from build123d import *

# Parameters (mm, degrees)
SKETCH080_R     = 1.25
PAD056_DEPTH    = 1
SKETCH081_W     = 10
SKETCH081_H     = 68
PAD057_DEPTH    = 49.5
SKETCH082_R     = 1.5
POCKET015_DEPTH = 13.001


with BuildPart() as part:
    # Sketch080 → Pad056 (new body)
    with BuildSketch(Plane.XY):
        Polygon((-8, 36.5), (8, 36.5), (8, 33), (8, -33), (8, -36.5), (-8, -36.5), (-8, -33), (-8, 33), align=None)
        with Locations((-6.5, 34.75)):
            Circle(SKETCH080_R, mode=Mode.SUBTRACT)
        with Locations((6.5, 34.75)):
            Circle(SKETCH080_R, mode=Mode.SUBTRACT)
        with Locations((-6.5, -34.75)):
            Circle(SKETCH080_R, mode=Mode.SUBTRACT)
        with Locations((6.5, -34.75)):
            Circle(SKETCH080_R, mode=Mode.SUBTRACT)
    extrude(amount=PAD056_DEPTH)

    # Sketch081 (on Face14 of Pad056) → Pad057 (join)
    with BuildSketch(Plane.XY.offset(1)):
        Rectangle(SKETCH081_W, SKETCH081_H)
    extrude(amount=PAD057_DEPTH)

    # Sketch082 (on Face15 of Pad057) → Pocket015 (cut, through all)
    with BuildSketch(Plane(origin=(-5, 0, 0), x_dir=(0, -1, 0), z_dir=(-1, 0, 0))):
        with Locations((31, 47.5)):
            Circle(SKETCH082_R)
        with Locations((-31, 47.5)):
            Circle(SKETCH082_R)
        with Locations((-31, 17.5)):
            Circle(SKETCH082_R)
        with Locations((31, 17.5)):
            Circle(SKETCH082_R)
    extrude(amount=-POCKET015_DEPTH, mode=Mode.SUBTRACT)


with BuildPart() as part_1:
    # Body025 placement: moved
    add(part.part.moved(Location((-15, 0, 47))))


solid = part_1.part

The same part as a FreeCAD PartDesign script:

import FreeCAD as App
import Part
import Sketcher

V = App.Vector

doc = App.newDocument("Part")
body = doc.addObject("PartDesign::Body", "Body")

# Sketch on XY plane
sketch1 = doc.addObject("Sketcher::SketchObject", "Sketch")
body.addObject(sketch1)
sketch1.AttachmentSupport = (doc.XY_Plane, [""])
sketch1.MapMode = "FlatFace"
sketch1.addGeometry(Part.LineSegment(V(8, 36.5, 0), V(-8, 36.5, 0)), False)
sketch1.addGeometry(Part.LineSegment(V(-8, 36.5, 0), V(-8, -36.5, 0)), False)
sketch1.addGeometry(Part.LineSegment(V(-8, -36.5, 0), V(8, -36.5, 0)), False)
sketch1.addGeometry(Part.LineSegment(V(8, -36.5, 0), V(8, 36.5, 0)), False)
sketch1.addGeometry(Part.Circle(V(6.5, -34.75, 0), V(0, 0, 1), 1.25), False)
sketch1.addGeometry(Part.Circle(V(-6.5, -34.75, 0), V(0, 0, 1), 1.25), False)
sketch1.addGeometry(Part.Circle(V(6.5, 34.75, 0), V(0, 0, 1), 1.25), False)
sketch1.addGeometry(Part.Circle(V(-6.5, 34.75, 0), V(0, 0, 1), 1.25), False)
sketch1.addConstraint(Sketcher.Constraint("Coincident", 0, 2, 1, 1))
sketch1.addConstraint(Sketcher.Constraint("Coincident", 1, 2, 2, 1))
sketch1.addConstraint(Sketcher.Constraint("Coincident", 2, 2, 3, 1))
sketch1.addConstraint(Sketcher.Constraint("Coincident", 3, 2, 0, 1))
sketch1.addConstraint(Sketcher.Constraint("Horizontal", 0))
sketch1.addConstraint(Sketcher.Constraint("Vertical", 1))
sketch1.addConstraint(Sketcher.Constraint("Horizontal", 2))
sketch1.addConstraint(Sketcher.Constraint("Vertical", 3))
sketch1.addConstraint(Sketcher.Constraint("Equal", 4, 5))
sketch1.addConstraint(Sketcher.Constraint("Equal", 5, 6))
sketch1.addConstraint(Sketcher.Constraint("Equal", 6, 7))
sketch1.addConstraint(Sketcher.Constraint("Symmetric", 5, 3, 6, 3, -1, 1))
sketch1.addConstraint(Sketcher.Constraint("Symmetric", 4, 3, 7, 3, -1, 1))
sketch1.addConstraint(Sketcher.Constraint("Symmetric", 0, 2, 2, 2, -1, 1))
sketch1.addConstraint(Sketcher.Constraint("Symmetric", 4, 3, 5, 3, -2))
sketch1.addConstraint(Sketcher.Constraint("Diameter", 4, 2.5))
sketch1.addConstraint(Sketcher.Constraint("DistanceX", 0, 2, 0, 1, 16.0))
sketch1.addConstraint(Sketcher.Constraint("DistanceY", 1, 2, 1, 1, 73.0))
sketch1.addConstraint(Sketcher.Constraint("DistanceX", 5, 3, 4, 3, 13.0))
sketch1.addConstraint(Sketcher.Constraint("DistanceY", 4, 3, 6, 3, 69.5))
pad1 = doc.addObject("PartDesign::Pad", "Pad")
body.addObject(pad1)
pad1.Profile = sketch1
pad1.Length = 1

# Sketch on XY plane
sketch2 = doc.addObject("Sketcher::SketchObject", "Sketch001")
body.addObject(sketch2)
sketch2.AttachmentSupport = (doc.XY_Plane, [""])
sketch2.MapMode = "FlatFace"
sketch2.AttachmentOffset = App.Placement(V(0, 0, 1), App.Rotation())
sketch2.addGeometry(Part.LineSegment(V(-5, 34, 0), V(-5, -34, 0)), False)
sketch2.addGeometry(Part.LineSegment(V(-5, -34, 0), V(5, -34, 0)), False)
sketch2.addGeometry(Part.LineSegment(V(5, -34, 0), V(5, 34, 0)), False)
sketch2.addGeometry(Part.LineSegment(V(5, 34, 0), V(-5, 34, 0)), False)
sketch2.addConstraint(Sketcher.Constraint("Coincident", 0, 2, 1, 1))
sketch2.addConstraint(Sketcher.Constraint("Coincident", 1, 2, 2, 1))
sketch2.addConstraint(Sketcher.Constraint("Coincident", 2, 2, 3, 1))
sketch2.addConstraint(Sketcher.Constraint("Coincident", 3, 2, 0, 1))
sketch2.addConstraint(Sketcher.Constraint("Vertical", 0))
sketch2.addConstraint(Sketcher.Constraint("Horizontal", 1))
sketch2.addConstraint(Sketcher.Constraint("Vertical", 2))
sketch2.addConstraint(Sketcher.Constraint("Horizontal", 3))
sketch2.addConstraint(Sketcher.Constraint("Symmetric", 0, 2, 2, 2, -1, 1))
sketch2.addConstraint(Sketcher.Constraint("DistanceX", 1, 1, 1, 2, 10.0))
sketch2.addConstraint(Sketcher.Constraint("DistanceY", 0, 2, 0, 1, 68.0))
pad2 = doc.addObject("PartDesign::Pad", "Pad001")
body.addObject(pad2)
pad2.Profile = sketch2
pad2.Length = 49.5

# Sketch on YZ plane
sketch3 = doc.addObject("Sketcher::SketchObject", "Sketch002")
body.addObject(sketch3)
sketch3.AttachmentSupport = (doc.YZ_Plane, [""])
sketch3.MapMode = "FlatFace"
sketch3.AttachmentOffset = App.Placement(V(0, 0, -5), App.Rotation())
sketch3.addGeometry(Part.Circle(V(-31, 47.5, 0), V(0, 0, 1), 1.5), False)
sketch3.addGeometry(Part.Circle(V(31, 47.5, 0), V(0, 0, 1), 1.5), False)
sketch3.addGeometry(Part.Circle(V(31, 17.5, 0), V(0, 0, 1), 1.5), False)
sketch3.addGeometry(Part.Circle(V(-31, 17.5, 0), V(0, 0, 1), 1.5), False)
sketch3.addConstraint(Sketcher.Constraint("Equal", 0, 1))
sketch3.addConstraint(Sketcher.Constraint("Equal", 1, 2))
sketch3.addConstraint(Sketcher.Constraint("Equal", 2, 3))
sketch3.addConstraint(Sketcher.Constraint("Symmetric", 0, 3, 1, 3, -2))
sketch3.addConstraint(Sketcher.Constraint("Symmetric", 2, 3, 3, 3, -2))
sketch3.addConstraint(Sketcher.Constraint("Vertical", 1, 3, 2, 3))
sketch3.addConstraint(Sketcher.Constraint("Diameter", 0, 3.0))
sketch3.addConstraint(Sketcher.Constraint("DistanceX", 0, 3, -1, 1, 31.0))
sketch3.addConstraint(Sketcher.Constraint("DistanceY", 2, 3, 1, 3, 30.0))
sketch3.addConstraint(Sketcher.Constraint("DistanceY", -1, 1, 0, 3, 47.5))
pocket1 = doc.addObject("PartDesign::Pocket", "Pocket")
body.addObject(pocket1)
pocket1.Profile = sketch3
pocket1.Type = "ThroughAll"
pocket1.Reversed = True
body2 = doc.addObject("PartDesign::Body", "Body001")
doc.recompute()

body.Placement = App.Placement(V(-15, 0, 47), App.Rotation(V(0, 0, 1), 0))
boolean = doc.addObject("PartDesign::Boolean", "Boolean")
body2.addObject(boolean)
boolean.Type = "Fuse"
boolean.addObjects([body])

doc.recompute()
